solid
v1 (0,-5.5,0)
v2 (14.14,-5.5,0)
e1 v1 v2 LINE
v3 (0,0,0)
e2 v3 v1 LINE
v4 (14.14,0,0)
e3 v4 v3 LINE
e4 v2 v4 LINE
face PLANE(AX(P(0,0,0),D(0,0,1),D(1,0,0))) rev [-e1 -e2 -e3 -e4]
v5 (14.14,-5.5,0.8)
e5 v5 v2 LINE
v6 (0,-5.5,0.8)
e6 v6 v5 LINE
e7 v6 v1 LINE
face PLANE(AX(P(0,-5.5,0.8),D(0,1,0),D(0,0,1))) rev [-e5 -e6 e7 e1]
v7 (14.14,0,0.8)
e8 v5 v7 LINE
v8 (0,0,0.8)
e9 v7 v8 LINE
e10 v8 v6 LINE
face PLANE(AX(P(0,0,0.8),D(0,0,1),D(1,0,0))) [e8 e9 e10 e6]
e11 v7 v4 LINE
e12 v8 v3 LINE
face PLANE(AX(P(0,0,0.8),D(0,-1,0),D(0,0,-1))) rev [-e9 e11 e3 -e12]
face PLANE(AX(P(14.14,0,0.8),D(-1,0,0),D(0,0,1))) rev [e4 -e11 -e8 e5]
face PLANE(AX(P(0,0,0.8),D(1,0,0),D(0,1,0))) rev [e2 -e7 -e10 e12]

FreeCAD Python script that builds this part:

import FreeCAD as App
import Part
import Sketcher

V = App.Vector


def add_polygon(sketch, points):
    """Adds a closed chain of lines whose ends are joined by coincident constraints."""
    first, n = sketch.GeometryCount, len(points)
    for a, b in zip(points, points[1:] + points[:1]):
        sketch.addGeometry(Part.LineSegment(App.Vector(*a, 0), App.Vector(*b, 0)), False)
    for i in range(n):
        sketch.addConstraint(Sketcher.Constraint("Coincident", first + i, 2, first + (i + 1) % n, 1))

doc = App.newDocument("Part")
body = doc.addObject("PartDesign::Body", "Body")

sketch1 = body.newObject("Sketcher::SketchObject", "Sketch")
sketch1.AttachmentSupport = (doc.getObject("XY_Plane"), [""])
sketch1.MapMode = "FlatFace"
add_polygon(sketch1, [(0, 0), (0, -6), (14, -6), (14, 0)])
sketch1.addConstraint([
    Sketcher.Constraint("Vertical", 0),
    Sketcher.Constraint("Horizontal", 1),
    Sketcher.Constraint("Vertical", 2),
    Sketcher.Constraint("Horizontal", 3),
    Sketcher.Constraint("Coincident", 3, 2, -1, 1),
    Sketcher.Constraint("DistanceY", 0, 2, 0, 1, 5.5),
    Sketcher.Constraint("DistanceX", 1, 1, 1, 2, 14.14),
])
pad1 = body.newObject("PartDesign::Pad", "Pad")
pad1.Profile = sketch1
pad1.Length = 0.8

doc.recompute()
